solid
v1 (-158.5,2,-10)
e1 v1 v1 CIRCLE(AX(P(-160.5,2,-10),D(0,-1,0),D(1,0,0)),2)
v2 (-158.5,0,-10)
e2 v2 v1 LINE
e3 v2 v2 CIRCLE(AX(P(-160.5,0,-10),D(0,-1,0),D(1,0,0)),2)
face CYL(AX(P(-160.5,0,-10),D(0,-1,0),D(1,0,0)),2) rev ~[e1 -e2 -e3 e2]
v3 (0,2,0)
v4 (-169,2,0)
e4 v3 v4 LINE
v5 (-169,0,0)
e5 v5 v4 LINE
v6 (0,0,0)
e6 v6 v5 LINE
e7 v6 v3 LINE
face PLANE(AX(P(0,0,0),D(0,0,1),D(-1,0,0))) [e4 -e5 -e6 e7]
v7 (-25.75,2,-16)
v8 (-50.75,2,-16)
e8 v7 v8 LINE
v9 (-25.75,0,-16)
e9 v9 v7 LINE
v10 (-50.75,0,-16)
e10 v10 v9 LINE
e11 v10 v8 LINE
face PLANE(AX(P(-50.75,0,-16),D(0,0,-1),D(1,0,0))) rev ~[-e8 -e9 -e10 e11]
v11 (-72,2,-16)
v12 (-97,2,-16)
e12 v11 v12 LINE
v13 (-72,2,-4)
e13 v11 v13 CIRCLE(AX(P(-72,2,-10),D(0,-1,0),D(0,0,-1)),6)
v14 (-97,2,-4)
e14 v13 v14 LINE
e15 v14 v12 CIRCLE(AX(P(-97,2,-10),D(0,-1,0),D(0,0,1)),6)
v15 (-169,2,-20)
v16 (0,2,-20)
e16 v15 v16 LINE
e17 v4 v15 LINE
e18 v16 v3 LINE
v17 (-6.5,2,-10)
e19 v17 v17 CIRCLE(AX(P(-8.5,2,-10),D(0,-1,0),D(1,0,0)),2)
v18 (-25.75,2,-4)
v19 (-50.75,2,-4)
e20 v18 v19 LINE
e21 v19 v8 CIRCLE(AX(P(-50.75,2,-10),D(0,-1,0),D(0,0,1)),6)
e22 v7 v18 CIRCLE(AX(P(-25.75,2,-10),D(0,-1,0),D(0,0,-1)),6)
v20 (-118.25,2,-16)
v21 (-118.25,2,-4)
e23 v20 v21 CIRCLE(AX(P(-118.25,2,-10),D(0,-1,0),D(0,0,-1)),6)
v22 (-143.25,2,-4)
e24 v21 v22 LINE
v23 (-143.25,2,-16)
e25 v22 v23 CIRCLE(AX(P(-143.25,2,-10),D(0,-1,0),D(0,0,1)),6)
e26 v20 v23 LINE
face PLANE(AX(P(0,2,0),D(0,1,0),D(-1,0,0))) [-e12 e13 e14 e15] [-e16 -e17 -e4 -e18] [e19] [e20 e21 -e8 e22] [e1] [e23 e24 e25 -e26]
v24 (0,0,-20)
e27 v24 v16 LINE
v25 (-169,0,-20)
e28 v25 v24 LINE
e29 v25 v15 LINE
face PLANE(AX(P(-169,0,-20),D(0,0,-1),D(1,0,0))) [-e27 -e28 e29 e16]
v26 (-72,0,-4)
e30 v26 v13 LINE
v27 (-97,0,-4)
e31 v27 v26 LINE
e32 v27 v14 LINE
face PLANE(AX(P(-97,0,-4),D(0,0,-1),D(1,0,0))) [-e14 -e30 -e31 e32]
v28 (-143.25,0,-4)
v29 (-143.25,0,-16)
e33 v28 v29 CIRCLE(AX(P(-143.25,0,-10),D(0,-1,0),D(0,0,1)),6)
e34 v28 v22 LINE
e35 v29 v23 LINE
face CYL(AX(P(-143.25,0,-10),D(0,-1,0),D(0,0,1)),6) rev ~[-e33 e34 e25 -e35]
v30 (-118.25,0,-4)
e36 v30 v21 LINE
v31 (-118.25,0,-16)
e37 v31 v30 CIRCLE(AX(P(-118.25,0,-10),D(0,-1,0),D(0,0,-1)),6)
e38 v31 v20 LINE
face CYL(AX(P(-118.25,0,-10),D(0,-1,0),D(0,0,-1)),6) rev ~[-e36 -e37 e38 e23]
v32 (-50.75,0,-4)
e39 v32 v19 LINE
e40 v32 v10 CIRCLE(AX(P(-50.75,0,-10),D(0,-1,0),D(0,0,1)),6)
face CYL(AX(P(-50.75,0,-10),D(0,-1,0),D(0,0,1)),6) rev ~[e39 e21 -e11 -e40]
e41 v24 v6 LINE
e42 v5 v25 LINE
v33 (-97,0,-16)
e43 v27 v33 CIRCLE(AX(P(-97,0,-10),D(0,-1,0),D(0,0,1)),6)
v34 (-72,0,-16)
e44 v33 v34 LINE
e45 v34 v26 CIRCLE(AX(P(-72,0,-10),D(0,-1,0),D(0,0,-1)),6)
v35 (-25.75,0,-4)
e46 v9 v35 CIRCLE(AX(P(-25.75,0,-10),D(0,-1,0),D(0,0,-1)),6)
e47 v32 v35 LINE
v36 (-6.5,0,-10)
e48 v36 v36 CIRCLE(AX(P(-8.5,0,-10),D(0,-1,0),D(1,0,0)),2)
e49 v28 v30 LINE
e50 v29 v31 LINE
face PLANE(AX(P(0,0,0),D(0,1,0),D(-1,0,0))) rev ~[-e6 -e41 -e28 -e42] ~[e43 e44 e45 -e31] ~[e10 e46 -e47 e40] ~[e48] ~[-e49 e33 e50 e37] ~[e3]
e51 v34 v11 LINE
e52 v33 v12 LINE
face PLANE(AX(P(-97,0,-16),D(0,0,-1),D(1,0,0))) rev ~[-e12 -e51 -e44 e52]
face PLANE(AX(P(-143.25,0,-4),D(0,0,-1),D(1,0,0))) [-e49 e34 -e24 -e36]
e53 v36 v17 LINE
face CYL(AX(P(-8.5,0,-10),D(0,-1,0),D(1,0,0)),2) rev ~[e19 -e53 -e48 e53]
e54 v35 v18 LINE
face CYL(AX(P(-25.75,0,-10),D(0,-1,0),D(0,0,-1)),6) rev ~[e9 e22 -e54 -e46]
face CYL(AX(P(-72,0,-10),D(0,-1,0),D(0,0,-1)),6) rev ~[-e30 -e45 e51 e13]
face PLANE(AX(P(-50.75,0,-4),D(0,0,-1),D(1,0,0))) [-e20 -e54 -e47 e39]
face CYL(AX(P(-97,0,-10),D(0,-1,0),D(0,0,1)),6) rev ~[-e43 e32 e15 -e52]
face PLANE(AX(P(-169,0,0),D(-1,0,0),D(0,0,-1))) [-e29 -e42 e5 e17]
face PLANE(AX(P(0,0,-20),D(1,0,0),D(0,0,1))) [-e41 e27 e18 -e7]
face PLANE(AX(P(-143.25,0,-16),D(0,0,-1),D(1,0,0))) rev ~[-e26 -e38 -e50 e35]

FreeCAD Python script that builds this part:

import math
import FreeCAD as App
import Part
import Sketcher
from FreeCAD import Vector
Q = App.Units.Quantity


def add_polygon(sketch, points):
    """Adds a closed chain of lines whose ends are joined by coincident constraints."""
    first, n = sketch.GeometryCount, len(points)
    for a, b in zip(points, points[1:] + points[:1]):
        sketch.addGeometry(Part.LineSegment(App.Vector(*a, 0), App.Vector(*b, 0)), False)
    for i in range(n):
        sketch.addConstraint(Sketcher.Constraint("Coincident", first + i, 2, first + (i + 1) % n, 1))

doc = App.newDocument("Part")
body = doc.addObject("PartDesign::Body", "Body")

# Sketch on XZ plane
sketch1 = doc.addObject("Sketcher::SketchObject", "Sketch")
body.addObject(sketch1)
sketch1.AttachmentSupport = (doc.XZ_Plane, [""])
sketch1.MapMode = "FlatFace"
add_polygon(sketch1, [(-169, 0), (0, 0), (0, -20), (-169, -20)])  # lines 0-3
sketch1.addConstraint(Sketcher.Constraint("Horizontal", 0))
sketch1.addConstraint(Sketcher.Constraint("Vertical", 1))
sketch1.addConstraint(Sketcher.Constraint("Horizontal", 2))
sketch1.addConstraint(Sketcher.Constraint("Vertical", 3))
sketch1.addConstraint(Sketcher.Constraint("Coincident", 0, 2, -1, 1))
sketch1.addConstraint(Sketcher.Constraint("DistanceX", 0, 1, 0, 2, Q("169 mm")))
sketch1.addConstraint(Sketcher.Constraint("DistanceY", 1, 2, 1, 1, Q("20 mm")))
pad1 = doc.addObject("PartDesign::Pad", "Pad")
body.addObject(pad1)
pad1.Profile = sketch1
pad1.Length = 2
pad1.Reversed = True

# Sketch on XZ plane
sketch2 = doc.addObject("Sketcher::SketchObject", "Sketch001")
body.addObject(sketch2)
sketch2.AttachmentSupport = (doc.XZ_Plane, [""])
sketch2.MapMode = "FlatFace"
sketch2.addGeometry(Part.Circle(Vector(-160.5, -10, 0), Vector(0, 0, 1), 2), False)
sketch2.addGeometry(Part.Circle(Vector(-8.5, -10, 0), Vector(0, 0, 1), 2), False)
sketch2.addConstraint(Sketcher.Constraint("Equal", 0, 1))
sketch2.addConstraint(Sketcher.Constraint("Horizontal", 0, 3, 1, 3))
sketch2.addConstraint(Sketcher.Constraint("Diameter", 0, Q("4 mm")))
sketch2.addConstraint(Sketcher.Constraint("DistanceX", 0, 3, 1, 3, Q("152 mm")))
sketch2.addConstraint(Sketcher.Constraint("DistanceX", 1, 3, -1, 1, Q("8.5 mm")))
sketch2.addConstraint(Sketcher.Constraint("DistanceY", 0, 3, -1, 1, Q("10 mm")))
pocket1 = doc.addObject("PartDesign::Pocket", "Pocket")
body.addObject(pocket1)
pocket1.Profile = sketch2
pocket1.Length = 2

# Sketch on XZ plane
sketch3 = doc.addObject("Sketcher::SketchObject", "Sketch002")
body.addObject(sketch3)
sketch3.AttachmentSupport = (doc.XZ_Plane, [""])
sketch3.MapMode = "FlatFace"
sketch3.addGeometry(Part.LineSegment(Vector(-118, -4, 0), Vector(-143, -4, 0)), False)
sketch3.addGeometry(Part.ArcOfCircle(Part.Circle(Vector(-143, -10, 0), Vector(0, 0, 1), 6), math.radians(90), math.radians(270)), False)
sketch3.addGeometry(Part.LineSegment(Vector(-143, -16, 0), Vector(-118, -16, 0)), False)
sketch3.addGeometry(Part.ArcOfCircle(Part.Circle(Vector(-118, -10, 0), Vector(0, 0, 1), 6), math.radians(-90), math.radians(90)), False)
sketch3.addGeometry(Part.LineSegment(Vector(-72, -4, 0), Vector(-97, -4, 0)), False)
sketch3.addGeometry(Part.ArcOfCircle(Part.Circle(Vector(-97, -10, 0), Vector(0, 0, 1), 6), math.radians(90), math.radians(270)), False)
sketch3.addGeometry(Part.LineSegment(Vector(-97, -16, 0), Vector(-72, -16, 0)), False)
sketch3.addGeometry(Part.ArcOfCircle(Part.Circle(Vector(-72, -10, 0), Vector(0, 0, 1), 6), math.radians(-90), math.radians(90)), False)
sketch3.addGeometry(Part.LineSegment(Vector(-26, -4, 0), Vector(-51, -4, 0)), False)
sketch3.addGeometry(Part.ArcOfCircle(Part.Circle(Vector(-51, -10, 0), Vector(0, 0, 1), 6), math.radians(90), math.radians(270)), False)
sketch3.addGeometry(Part.LineSegment(Vector(-51, -16, 0), Vector(-26, -16, 0)), False)
sketch3.addGeometry(Part.ArcOfCircle(Part.Circle(Vector(-26, -10, 0), Vector(0, 0, 1), 6), math.radians(-90), math.radians(90)), False)
sketch3.addConstraint(Sketcher.Constraint("Tangent", 0, 2, 1, 1))
sketch3.addConstraint(Sketcher.Constraint("Tangent", 1, 2, 2, 1))
sketch3.addConstraint(Sketcher.Constraint("Tangent", 2, 2, 3, 1))
sketch3.addConstraint(Sketcher.Constraint("Tangent", 3, 2, 0, 1))
sketch3.addConstraint(Sketcher.Constraint("Tangent", 4, 2, 5, 1))
sketch3.addConstraint(Sketcher.Constraint("Tangent", 5, 2, 6, 1))
sketch3.addConstraint(Sketcher.Constraint("Tangent", 6, 2, 7, 1))
sketch3.addConstraint(Sketcher.Constraint("Tangent", 7, 2, 4, 1))
sketch3.addConstraint(Sketcher.Constraint("Tangent", 8, 2, 9, 1))
sketch3.addConstraint(Sketcher.Constraint("Tangent", 9, 2, 10, 1))
sketch3.addConstraint(Sketcher.Constraint("Tangent", 10, 2, 11, 1))
sketch3.addConstraint(Sketcher.Constraint("Tangent", 11, 2, 8, 1))
sketch3.addConstraint(Sketcher.Constraint("Horizontal", 0))
sketch3.addConstraint(Sketcher.Constraint("Horizontal", 2))
sketch3.addConstraint(Sketcher.Constraint("Horizontal", 4))
sketch3.addConstraint(Sketcher.Constraint("Horizontal", 6))
sketch3.addConstraint(Sketcher.Constraint("Horizontal", 8))
sketch3.addConstraint(Sketcher.Constraint("Horizontal", 10))
sketch3.addConstraint(Sketcher.Constraint("Equal", 3, 5))
sketch3.addConstraint(Sketcher.Constraint("Equal", 7, 9))
sketch3.addConstraint(Sketcher.Constraint("Horizontal", 3, 3, 5, 3))
sketch3.addConstraint(Sketcher.Constraint("Horizontal", 7, 3, 9, 3))
sketch3.addConstraint(Sketcher.Constraint("Equal", 2, 4))
sketch3.addConstraint(Sketcher.Constraint("Equal", 6, 8))
sketch3.addConstraint(Sketcher.Constraint("Radius", 1, Q("6 mm")))
sketch3.addConstraint(Sketcher.Constraint("DistanceX", 0, 2, 0, 1, Q("25 mm")))
sketch3.addConstraint(Sketcher.Constraint("DistanceY", 1, 3, -1, 1, Q("10 mm")))
sketch3.addConstraint(Sketcher.Constraint("DistanceX", 1, 3, 5, 3, Q("46.25 mm")))
sketch3.addConstraint(Sketcher.Constraint("DistanceX", 5, 3, 9, 3, Q("46.25 mm")))
sketch3.addConstraint(Sketcher.Constraint("DistanceX", 5, 3, -1, 1, Q("97 mm")))
pocket2 = doc.addObject("PartDesign::Pocket", "Pocket001")
body.addObject(pocket2)
pocket2.Profile = sketch3
pocket2.Length = 10

doc.recompute()
